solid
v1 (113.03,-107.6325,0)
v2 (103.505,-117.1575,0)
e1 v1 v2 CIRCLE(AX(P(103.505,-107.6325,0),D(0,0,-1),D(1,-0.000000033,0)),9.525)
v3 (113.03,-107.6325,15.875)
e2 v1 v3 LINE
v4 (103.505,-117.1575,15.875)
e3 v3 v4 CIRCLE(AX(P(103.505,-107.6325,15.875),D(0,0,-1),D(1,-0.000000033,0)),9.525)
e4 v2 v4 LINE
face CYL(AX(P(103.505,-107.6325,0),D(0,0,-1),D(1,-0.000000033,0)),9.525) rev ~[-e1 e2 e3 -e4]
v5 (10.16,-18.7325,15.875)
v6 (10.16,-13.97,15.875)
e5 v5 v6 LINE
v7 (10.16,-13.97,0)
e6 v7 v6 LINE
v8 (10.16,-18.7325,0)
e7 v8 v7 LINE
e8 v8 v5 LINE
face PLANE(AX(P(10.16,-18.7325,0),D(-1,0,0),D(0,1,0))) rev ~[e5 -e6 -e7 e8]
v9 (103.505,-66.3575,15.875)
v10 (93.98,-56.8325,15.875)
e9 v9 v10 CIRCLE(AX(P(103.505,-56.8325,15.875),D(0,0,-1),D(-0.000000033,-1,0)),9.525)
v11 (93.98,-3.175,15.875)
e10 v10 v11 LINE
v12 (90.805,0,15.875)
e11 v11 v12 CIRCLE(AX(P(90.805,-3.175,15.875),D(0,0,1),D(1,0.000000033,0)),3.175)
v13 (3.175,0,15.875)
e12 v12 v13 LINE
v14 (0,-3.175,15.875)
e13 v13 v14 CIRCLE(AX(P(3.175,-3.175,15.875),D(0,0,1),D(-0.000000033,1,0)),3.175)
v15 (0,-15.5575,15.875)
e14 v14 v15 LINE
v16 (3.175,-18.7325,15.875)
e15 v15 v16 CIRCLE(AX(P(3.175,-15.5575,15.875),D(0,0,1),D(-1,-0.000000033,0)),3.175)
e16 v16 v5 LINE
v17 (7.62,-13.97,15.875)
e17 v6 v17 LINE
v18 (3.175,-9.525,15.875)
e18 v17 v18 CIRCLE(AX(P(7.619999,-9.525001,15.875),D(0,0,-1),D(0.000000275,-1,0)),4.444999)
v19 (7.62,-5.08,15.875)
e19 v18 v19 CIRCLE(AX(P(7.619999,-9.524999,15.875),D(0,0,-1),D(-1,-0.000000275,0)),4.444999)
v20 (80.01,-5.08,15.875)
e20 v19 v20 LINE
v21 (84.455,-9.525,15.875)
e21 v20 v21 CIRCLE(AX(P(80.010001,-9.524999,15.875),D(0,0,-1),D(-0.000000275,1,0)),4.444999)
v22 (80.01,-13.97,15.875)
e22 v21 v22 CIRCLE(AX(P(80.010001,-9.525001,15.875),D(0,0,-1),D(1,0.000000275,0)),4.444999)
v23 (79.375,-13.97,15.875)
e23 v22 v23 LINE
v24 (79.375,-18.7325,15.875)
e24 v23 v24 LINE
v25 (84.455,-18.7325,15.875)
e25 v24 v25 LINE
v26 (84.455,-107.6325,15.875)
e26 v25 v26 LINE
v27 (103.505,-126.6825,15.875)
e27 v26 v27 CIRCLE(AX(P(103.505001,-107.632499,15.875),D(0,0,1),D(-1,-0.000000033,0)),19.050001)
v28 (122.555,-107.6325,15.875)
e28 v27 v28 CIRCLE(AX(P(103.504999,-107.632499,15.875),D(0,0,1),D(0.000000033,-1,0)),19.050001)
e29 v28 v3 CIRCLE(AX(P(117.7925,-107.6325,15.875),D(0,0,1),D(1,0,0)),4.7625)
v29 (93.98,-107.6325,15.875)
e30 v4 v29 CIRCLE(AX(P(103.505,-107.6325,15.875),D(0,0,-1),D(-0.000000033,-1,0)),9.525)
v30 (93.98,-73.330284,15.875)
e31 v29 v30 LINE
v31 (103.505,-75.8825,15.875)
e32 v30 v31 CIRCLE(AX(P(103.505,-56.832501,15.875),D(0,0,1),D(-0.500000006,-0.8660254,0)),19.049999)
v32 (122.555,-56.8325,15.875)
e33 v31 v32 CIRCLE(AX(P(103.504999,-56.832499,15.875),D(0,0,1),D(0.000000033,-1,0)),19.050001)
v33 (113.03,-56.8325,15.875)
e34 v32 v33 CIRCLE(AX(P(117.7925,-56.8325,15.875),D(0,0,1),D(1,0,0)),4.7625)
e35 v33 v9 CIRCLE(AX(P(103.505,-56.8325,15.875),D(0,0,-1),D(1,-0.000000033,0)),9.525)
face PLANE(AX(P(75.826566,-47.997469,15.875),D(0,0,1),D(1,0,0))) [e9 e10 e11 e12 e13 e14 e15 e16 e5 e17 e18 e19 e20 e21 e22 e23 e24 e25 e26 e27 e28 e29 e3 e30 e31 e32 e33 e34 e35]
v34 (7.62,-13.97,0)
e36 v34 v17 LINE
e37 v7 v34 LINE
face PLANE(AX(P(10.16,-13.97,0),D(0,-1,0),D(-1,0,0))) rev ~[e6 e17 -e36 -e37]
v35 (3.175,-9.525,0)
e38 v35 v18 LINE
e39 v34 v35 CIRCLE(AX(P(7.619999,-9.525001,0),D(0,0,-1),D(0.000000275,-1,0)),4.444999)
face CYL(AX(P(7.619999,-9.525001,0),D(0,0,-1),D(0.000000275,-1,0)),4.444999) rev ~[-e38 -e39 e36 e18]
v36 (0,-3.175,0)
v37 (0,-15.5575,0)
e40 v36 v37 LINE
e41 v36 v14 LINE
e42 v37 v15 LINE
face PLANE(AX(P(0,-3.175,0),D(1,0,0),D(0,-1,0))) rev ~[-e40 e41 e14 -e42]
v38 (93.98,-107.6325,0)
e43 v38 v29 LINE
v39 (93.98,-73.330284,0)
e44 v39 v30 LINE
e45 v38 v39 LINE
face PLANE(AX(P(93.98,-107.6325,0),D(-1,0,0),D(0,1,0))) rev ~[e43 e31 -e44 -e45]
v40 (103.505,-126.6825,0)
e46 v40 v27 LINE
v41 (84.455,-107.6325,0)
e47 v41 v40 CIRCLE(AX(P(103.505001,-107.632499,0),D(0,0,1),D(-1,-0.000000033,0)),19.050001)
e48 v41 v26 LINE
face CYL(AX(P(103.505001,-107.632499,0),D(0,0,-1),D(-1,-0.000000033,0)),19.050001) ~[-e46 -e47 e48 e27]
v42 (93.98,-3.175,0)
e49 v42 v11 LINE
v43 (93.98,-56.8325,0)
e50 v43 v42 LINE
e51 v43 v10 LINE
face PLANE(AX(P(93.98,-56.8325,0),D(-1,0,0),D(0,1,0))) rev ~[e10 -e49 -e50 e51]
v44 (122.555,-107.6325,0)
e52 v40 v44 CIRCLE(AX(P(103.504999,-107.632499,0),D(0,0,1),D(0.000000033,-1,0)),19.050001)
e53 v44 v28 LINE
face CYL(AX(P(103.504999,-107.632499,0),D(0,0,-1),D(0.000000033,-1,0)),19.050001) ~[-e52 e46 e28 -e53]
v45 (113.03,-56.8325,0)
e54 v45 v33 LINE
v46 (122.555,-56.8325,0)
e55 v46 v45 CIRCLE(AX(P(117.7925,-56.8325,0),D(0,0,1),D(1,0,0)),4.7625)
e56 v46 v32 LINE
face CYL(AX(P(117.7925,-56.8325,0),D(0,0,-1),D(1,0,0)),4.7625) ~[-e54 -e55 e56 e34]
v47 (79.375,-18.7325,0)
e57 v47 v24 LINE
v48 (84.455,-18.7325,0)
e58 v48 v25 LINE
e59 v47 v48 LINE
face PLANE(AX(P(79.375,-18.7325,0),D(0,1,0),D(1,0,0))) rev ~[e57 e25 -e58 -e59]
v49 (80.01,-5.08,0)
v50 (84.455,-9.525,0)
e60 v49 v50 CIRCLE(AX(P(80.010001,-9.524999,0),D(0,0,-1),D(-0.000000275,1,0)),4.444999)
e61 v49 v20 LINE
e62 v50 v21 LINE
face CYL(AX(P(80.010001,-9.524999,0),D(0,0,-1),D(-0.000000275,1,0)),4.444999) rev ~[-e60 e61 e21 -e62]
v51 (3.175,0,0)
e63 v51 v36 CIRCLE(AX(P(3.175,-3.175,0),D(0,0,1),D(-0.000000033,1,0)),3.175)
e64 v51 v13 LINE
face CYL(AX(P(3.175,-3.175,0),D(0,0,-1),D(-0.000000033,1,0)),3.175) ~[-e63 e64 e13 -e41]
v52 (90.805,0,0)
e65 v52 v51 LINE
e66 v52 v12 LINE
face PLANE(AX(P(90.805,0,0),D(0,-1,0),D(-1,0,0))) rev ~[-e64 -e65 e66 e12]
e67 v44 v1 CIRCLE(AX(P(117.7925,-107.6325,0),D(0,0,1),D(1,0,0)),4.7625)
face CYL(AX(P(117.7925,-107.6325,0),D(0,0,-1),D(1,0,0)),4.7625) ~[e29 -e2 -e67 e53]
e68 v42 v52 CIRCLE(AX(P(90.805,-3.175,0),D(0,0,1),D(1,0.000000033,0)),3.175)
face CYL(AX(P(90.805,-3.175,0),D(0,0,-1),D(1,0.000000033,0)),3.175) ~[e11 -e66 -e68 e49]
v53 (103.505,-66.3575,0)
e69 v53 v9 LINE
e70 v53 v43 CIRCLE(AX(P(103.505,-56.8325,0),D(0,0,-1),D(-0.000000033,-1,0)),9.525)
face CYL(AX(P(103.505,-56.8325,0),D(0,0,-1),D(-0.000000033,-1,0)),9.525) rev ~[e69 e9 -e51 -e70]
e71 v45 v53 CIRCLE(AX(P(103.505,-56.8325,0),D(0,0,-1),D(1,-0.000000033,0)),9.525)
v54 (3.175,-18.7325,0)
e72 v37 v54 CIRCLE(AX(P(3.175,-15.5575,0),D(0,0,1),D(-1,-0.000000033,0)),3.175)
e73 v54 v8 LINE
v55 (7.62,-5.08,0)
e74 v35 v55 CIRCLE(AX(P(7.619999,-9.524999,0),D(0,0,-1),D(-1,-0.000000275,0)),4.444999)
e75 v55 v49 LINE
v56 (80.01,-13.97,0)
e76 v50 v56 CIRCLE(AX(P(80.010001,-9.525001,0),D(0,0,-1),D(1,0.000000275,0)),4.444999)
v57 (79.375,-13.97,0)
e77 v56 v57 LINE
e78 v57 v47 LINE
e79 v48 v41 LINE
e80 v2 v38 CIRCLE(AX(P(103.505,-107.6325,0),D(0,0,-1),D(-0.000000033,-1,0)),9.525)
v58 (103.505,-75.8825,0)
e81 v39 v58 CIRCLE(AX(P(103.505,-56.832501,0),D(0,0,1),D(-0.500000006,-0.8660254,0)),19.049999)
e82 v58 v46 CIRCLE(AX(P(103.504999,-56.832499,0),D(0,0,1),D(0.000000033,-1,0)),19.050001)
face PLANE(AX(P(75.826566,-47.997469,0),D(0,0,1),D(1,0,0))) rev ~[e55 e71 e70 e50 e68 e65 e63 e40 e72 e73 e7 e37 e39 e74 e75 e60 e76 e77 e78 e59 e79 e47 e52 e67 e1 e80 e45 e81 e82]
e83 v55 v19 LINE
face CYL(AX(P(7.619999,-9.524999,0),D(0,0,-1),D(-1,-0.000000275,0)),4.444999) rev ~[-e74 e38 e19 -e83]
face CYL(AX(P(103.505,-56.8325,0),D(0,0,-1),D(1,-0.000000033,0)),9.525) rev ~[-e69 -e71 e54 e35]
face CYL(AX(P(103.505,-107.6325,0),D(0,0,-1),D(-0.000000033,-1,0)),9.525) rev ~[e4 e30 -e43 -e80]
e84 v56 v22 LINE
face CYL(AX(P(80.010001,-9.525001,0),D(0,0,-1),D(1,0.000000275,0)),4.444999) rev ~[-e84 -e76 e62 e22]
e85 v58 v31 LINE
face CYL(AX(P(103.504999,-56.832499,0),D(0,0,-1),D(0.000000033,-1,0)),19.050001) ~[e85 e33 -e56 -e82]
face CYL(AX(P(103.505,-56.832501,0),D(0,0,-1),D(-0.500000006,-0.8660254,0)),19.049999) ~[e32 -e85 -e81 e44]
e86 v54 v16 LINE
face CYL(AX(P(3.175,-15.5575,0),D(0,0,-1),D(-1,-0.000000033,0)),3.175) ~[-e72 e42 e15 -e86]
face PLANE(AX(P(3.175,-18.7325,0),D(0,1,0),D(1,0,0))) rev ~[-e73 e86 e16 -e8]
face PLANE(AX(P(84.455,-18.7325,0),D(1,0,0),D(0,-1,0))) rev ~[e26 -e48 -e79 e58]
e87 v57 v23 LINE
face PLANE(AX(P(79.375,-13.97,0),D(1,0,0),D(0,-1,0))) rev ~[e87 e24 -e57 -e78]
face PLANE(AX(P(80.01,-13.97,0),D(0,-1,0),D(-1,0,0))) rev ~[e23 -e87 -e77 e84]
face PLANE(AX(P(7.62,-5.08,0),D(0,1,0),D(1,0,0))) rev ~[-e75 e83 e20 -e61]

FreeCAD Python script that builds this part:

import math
import FreeCAD as App
import Part
import Sketcher
from FreeCAD import Vector
Q = App.Units.Quantity

doc = App.newDocument("Part")
body = doc.addObject("PartDesign::Body", "Body")

sketch1 = body.newObject("Sketcher::SketchObject", "Sketch")
sketch1.AttachmentSupport = (doc.getObject("XY_Plane"), [""])
sketch1.MapMode = "FlatFace"
sketch1.addGeometry(Part.LineSegment(Vector(90.805, 0, 0), Vector(3.175, 0, 0)), False)
sketch1.addGeometry(Part.ArcOfCircle(Part.Circle(Vector(3.175, -3.175, 0), Vector(0, 0, 1), 3.175), math.radians(90.000002), math.radians(179.999998)), False)
sketch1.addGeometry(Part.LineSegment(Vector(0, -3.175, 0), Vector(0, -15.5575, 0)), False)
sketch1.addGeometry(Part.ArcOfCircle(Part.Circle(Vector(3.175, -15.5575, 0), Vector(0, 0, 1), 3.175), math.radians(-179.999998), math.radians(-90.000002)), False)
sketch1.addGeometry(Part.LineSegment(Vector(3.175, -18.7325, 0), Vector(10.16, -18.7325, 0)), False)
sketch1.addGeometry(Part.LineSegment(Vector(10.16, -18.7325, 0), Vector(10.16, -13.97, 0)), False)
sketch1.addGeometry(Part.LineSegment(Vector(10.16, -13.97, 0), Vector(7.62, -13.97, 0)), False)
sketch1.addGeometry(Part.ArcOfCircle(Part.Circle(Vector(7.619999, -9.525001, 0), Vector(0, 0, 1), 4.444999), math.radians(179.999984), math.radians(270.000016)), False)
sketch1.addGeometry(Part.ArcOfCircle(Part.Circle(Vector(7.619999, -9.524999, 0), Vector(0, 0, 1), 4.444999), math.radians(89.999984), math.radians(180.000016)), False)
sketch1.addGeometry(Part.LineSegment(Vector(7.62, -5.08, 0), Vector(80.01, -5.08, 0)), False)
sketch1.addGeometry(Part.ArcOfCircle(Part.Circle(Vector(80.010001, -9.524999, 0), Vector(0, 0, 1), 4.444999), math.radians(-0.000016), math.radians(90.000016)), False)
sketch1.addGeometry(Part.ArcOfCircle(Part.Circle(Vector(80.010001, -9.525001, 0), Vector(0, 0, 1), 4.444999), math.radians(-90.000016), math.radians(0.000016)), False)
sketch1.addGeometry(Part.LineSegment(Vector(80.01, -13.97, 0), Vector(79.375, -13.97, 0)), False)
sketch1.addGeometry(Part.LineSegment(Vector(79.375, -13.97, 0), Vector(79.375, -18.7325, 0)), False)
sketch1.addGeometry(Part.LineSegment(Vector(79.375, -18.7325, 0), Vector(84.455, -18.7325, 0)), False)
sketch1.addGeometry(Part.LineSegment(Vector(84.455, -18.7325, 0), Vector(84.455, -107.6325, 0)), False)
sketch1.addGeometry(Part.ArcOfCircle(Part.Circle(Vector(103.505001, -107.632499, 0), Vector(0, 0, 1), 19.050001), math.radians(-179.999998), math.radians(-90.000002)), False)
sketch1.addGeometry(Part.ArcOfCircle(Part.Circle(Vector(103.504999, -107.632499, 0), Vector(0, 0, 1), 19.050001), math.radians(-89.999998), math.radians(-0.000002)), False)
sketch1.addGeometry(Part.ArcOfCircle(Part.Circle(Vector(117.7925, -107.6325, 0), Vector(0, 0, 1), 4.7625), math.radians(0), math.radians(180)), False)
sketch1.addGeometry(Part.ArcOfCircle(Part.Circle(Vector(103.505, -107.6325, 0), Vector(0, 0, 1), 9.525), math.radians(-89.999998), math.radians(-0.000002)), False)
sketch1.addGeometry(Part.ArcOfCircle(Part.Circle(Vector(103.505, -107.6325, 0), Vector(0, 0, 1), 9.525), math.radians(-179.999998), math.radians(-90.000002)), False)
sketch1.addGeometry(Part.LineSegment(Vector(93.98, -107.6325, 0), Vector(93.98, -73.330284, 0)), False)
sketch1.addGeometry(Part.ArcOfCircle(Part.Circle(Vector(103.505, -56.832501, 0), Vector(0, 0, 1), 19.049999), math.radians(-120), math.radians(-89.999999)), False)
sketch1.addGeometry(Part.ArcOfCircle(Part.Circle(Vector(103.504999, -56.832499, 0), Vector(0, 0, 1), 19.050001), math.radians(-89.999998), math.radians(-0.000002)), False)
sketch1.addGeometry(Part.ArcOfCircle(Part.Circle(Vector(117.7925, -56.8325, 0), Vector(0, 0, 1), 4.7625), math.radians(0), math.radians(180)), False)
sketch1.addGeometry(Part.ArcOfCircle(Part.Circle(Vector(103.505, -56.8325, 0), Vector(0, 0, 1), 9.525), math.radians(-89.999998), math.radians(-0.000002)), False)
sketch1.addGeometry(Part.ArcOfCircle(Part.Circle(Vector(103.505, -56.8325, 0), Vector(0, 0, 1), 9.525), math.radians(-179.999998), math.radians(-90.000002)), False)
sketch1.addGeometry(Part.LineSegment(Vector(93.98, -56.8325, 0), Vector(93.98, -3.175, 0)), False)
sketch1.addGeometry(Part.ArcOfCircle(Part.Circle(Vector(90.805, -3.175, 0), Vector(0, 0, 1), 3.175), math.radians(0.000002), math.radians(89.999998)), False)
sketch1.addConstraint(Sketcher.Constraint("Tangent", 0, 2, 1, 1))
sketch1.addConstraint(Sketcher.Constraint("Tangent", 1, 2, 2, 1))
sketch1.addConstraint(Sketcher.Constraint("Tangent", 2, 2, 3, 1))
sketch1.addConstraint(Sketcher.Constraint("Tangent", 3, 2, 4, 1))
sketch1.addConstraint(Sketcher.Constraint("Coincident", 4, 2, 5, 1))
sketch1.addConstraint(Sketcher.Constraint("Coincident", 5, 2, 6, 1))
sketch1.addConstraint(Sketcher.Constraint("Tangent", 6, 2, 7, 2))
sketch1.addConstraint(Sketcher.Constraint("Tangent", 7, 1, 8, 2))
sketch1.addConstraint(Sketcher.Constraint("Tangent", 8, 1, 9, 1))
sketch1.addConstraint(Sketcher.Constraint("Tangent", 9, 2, 10, 2))
sketch1.addConstraint(Sketcher.Constraint("Tangent", 10, 1, 11, 2))
sketch1.addConstraint(Sketcher.Constraint("Tangent", 11, 1, 12, 1))
sketch1.addConstraint(Sketcher.Constraint("Coincident", 12, 2, 13, 1))
sketch1.addConstraint(Sketcher.Constraint("Coincident", 13, 2, 14, 1))
sketch1.addConstraint(Sketcher.Constraint("Coincident", 14, 2, 15, 1))
sketch1.addConstraint(Sketcher.Constraint("Tangent", 15, 2, 16, 1))
sketch1.addConstraint(Sketcher.Constraint("Tangent", 16, 2, 17, 1))
sketch1.addConstraint(Sketcher.Constraint("Tangent", 17, 2, 18, 1))
sketch1.addConstraint(Sketcher.Constraint("Tangent", 18, 2, 19, 2))
sketch1.addConstraint(Sketcher.Constraint("Tangent", 19, 1, 20, 2))
sketch1.addConstraint(Sketcher.Constraint("Tangent", 20, 1, 21, 1))
sketch1.addConstraint(Sketcher.Constraint("Coincident", 21, 2, 22, 1))
sketch1.addConstraint(Sketcher.Constraint("Tangent", 22, 2, 23, 1))
sketch1.addConstraint(Sketcher.Constraint("Tangent", 23, 2, 24, 1))
sketch1.addConstraint(Sketcher.Constraint("Tangent", 24, 2, 25, 2))
sketch1.addConstraint(Sketcher.Constraint("Tangent", 25, 1, 26, 2))
sketch1.addConstraint(Sketcher.Constraint("Tangent", 26, 1, 27, 1))
sketch1.addConstraint(Sketcher.Constraint("Tangent", 27, 2, 28, 1))
sketch1.addConstraint(Sketcher.Constraint("Tangent", 28, 2, 0, 1))
sketch1.addConstraint(Sketcher.Constraint("Horizontal", 0))
sketch1.addConstraint(Sketcher.Constraint("Vertical", 2))
sketch1.addConstraint(Sketcher.Constraint("Horizontal", 4))
sketch1.addConstraint(Sketcher.Constraint("Vertical", 5))
sketch1.addConstraint(Sketcher.Constraint("Horizontal", 6))
sketch1.addConstraint(Sketcher.Constraint("Horizontal", 9))
sketch1.addConstraint(Sketcher.Constraint("Horizontal", 12))
sketch1.addConstraint(Sketcher.Constraint("Vertical", 13))
sketch1.addConstraint(Sketcher.Constraint("Horizontal", 14))
sketch1.addConstraint(Sketcher.Constraint("Vertical", 15))
sketch1.addConstraint(Sketcher.Constraint("Vertical", 21))
sketch1.addConstraint(Sketcher.Constraint("Vertical", 27))
sketch1.addConstraint(Sketcher.Constraint("Coincident", 19, 3, 16, 3))
sketch1.addConstraint(Sketcher.Constraint("Coincident", 25, 3, 22, 3))
sketch1.addConstraint(Sketcher.Constraint("Equal", 1, 3))
sketch1.addConstraint(Sketcher.Constraint("Equal", 7, 8))
sketch1.addConstraint(Sketcher.Constraint("Equal", 8, 10))
sketch1.addConstraint(Sketcher.Constraint("Equal", 10, 11))
sketch1.addConstraint(Sketcher.Constraint("Equal", 16, 17))
sketch1.addConstraint(Sketcher.Constraint("Equal", 19, 20))
sketch1.addConstraint(Sketcher.Constraint("Equal", 17, 22))
sketch1.addConstraint(Sketcher.Constraint("Equal", 22, 23))
sketch1.addConstraint(Sketcher.Constraint("Equal", 18, 24))
sketch1.addConstraint(Sketcher.Constraint("Equal", 25, 26))
sketch1.addConstraint(Sketcher.Constraint("Equal", 3, 28))
sketch1.addConstraint(Sketcher.Constraint("PointOnObject", 0, 2, -1))
sketch1.addConstraint(Sketcher.Constraint("PointOnObject", 1, 2, -2))
sketch1.addConstraint(Sketcher.Constraint("Horizontal", 17, 3, 18, 3))
sketch1.addConstraint(Sketcher.Constraint("Horizontal", 23, 3, 24, 3))
sketch1.addConstraint(Sketcher.Constraint("Horizontal", 11, 3, 7, 1))
sketch1.addConstraint(Sketcher.Constraint("Horizontal", 7, 1, 10, 1))
sketch1.addConstraint(Sketcher.Constraint("Horizontal", 4, 2, 13, 2))
sketch1.addConstraint(Sketcher.Constraint("Vertical", 20, 3, 22, 3))
sketch1.addConstraint(Sketcher.Constraint("Vertical", 3, 2, 7, 1))
sketch1.addConstraint(Sketcher.Constraint("Vertical", 10, 1, 14, 2))
sketch1.addConstraint(Sketcher.Constraint("Vertical", 26, 3, 16, 2))
sketch1.addConstraint(Sketcher.Constraint("Vertical", 16, 2, 19, 1))
sketch1.addConstraint(Sketcher.Constraint("Vertical", 19, 1, 22, 2))
sketch1.addConstraint(Sketcher.Constraint("Vertical", 22, 2, 25, 1))
sketch1.addConstraint(Sketcher.Constraint("Radius", 16, Q("0.75 in")))
sketch1.addConstraint(Sketcher.Constraint("DistanceX", 6, 2, 6, 1, Q("0.1 in")))
sketch1.addConstraint(Sketcher.Constraint("DistanceX", 14, 1, 14, 2, Q("0.2 in")))
sketch1.addConstraint(Sketcher.Constraint("DistanceY", 15, 2, 15, 1, Q("3.5 in")))
sketch1.addConstraint(Sketcher.Constraint("Radius", 1, Q("0.125 in")))
sketch1.addConstraint(Sketcher.Constraint("Radius", 7, Q("0.175 in")))
sketch1.addConstraint(Sketcher.Constraint("Radius", 18, Q("0.1875 in")))
sketch1.addConstraint(Sketcher.Constraint("DistanceY", 17, 3, 22, 3, Q("1.9999999 in")))
sketch1.addConstraint(Sketcher.Constraint("DistanceX", 0, 2, 0, 1, Q("3.45 in")))
sketch1.addConstraint(Sketcher.Constraint("DistanceY", 8, 1, -1, 1, Q("0.2 in")))
sketch1.addConstraint(Sketcher.Constraint("DistanceY", 5, 1, 5, 2, Q("0.1875 in")))
pad1 = body.newObject("PartDesign::Pad", "Pad")
pad1.Profile = sketch1
pad1.Length = Q("0.625 in")

doc.recompute()
